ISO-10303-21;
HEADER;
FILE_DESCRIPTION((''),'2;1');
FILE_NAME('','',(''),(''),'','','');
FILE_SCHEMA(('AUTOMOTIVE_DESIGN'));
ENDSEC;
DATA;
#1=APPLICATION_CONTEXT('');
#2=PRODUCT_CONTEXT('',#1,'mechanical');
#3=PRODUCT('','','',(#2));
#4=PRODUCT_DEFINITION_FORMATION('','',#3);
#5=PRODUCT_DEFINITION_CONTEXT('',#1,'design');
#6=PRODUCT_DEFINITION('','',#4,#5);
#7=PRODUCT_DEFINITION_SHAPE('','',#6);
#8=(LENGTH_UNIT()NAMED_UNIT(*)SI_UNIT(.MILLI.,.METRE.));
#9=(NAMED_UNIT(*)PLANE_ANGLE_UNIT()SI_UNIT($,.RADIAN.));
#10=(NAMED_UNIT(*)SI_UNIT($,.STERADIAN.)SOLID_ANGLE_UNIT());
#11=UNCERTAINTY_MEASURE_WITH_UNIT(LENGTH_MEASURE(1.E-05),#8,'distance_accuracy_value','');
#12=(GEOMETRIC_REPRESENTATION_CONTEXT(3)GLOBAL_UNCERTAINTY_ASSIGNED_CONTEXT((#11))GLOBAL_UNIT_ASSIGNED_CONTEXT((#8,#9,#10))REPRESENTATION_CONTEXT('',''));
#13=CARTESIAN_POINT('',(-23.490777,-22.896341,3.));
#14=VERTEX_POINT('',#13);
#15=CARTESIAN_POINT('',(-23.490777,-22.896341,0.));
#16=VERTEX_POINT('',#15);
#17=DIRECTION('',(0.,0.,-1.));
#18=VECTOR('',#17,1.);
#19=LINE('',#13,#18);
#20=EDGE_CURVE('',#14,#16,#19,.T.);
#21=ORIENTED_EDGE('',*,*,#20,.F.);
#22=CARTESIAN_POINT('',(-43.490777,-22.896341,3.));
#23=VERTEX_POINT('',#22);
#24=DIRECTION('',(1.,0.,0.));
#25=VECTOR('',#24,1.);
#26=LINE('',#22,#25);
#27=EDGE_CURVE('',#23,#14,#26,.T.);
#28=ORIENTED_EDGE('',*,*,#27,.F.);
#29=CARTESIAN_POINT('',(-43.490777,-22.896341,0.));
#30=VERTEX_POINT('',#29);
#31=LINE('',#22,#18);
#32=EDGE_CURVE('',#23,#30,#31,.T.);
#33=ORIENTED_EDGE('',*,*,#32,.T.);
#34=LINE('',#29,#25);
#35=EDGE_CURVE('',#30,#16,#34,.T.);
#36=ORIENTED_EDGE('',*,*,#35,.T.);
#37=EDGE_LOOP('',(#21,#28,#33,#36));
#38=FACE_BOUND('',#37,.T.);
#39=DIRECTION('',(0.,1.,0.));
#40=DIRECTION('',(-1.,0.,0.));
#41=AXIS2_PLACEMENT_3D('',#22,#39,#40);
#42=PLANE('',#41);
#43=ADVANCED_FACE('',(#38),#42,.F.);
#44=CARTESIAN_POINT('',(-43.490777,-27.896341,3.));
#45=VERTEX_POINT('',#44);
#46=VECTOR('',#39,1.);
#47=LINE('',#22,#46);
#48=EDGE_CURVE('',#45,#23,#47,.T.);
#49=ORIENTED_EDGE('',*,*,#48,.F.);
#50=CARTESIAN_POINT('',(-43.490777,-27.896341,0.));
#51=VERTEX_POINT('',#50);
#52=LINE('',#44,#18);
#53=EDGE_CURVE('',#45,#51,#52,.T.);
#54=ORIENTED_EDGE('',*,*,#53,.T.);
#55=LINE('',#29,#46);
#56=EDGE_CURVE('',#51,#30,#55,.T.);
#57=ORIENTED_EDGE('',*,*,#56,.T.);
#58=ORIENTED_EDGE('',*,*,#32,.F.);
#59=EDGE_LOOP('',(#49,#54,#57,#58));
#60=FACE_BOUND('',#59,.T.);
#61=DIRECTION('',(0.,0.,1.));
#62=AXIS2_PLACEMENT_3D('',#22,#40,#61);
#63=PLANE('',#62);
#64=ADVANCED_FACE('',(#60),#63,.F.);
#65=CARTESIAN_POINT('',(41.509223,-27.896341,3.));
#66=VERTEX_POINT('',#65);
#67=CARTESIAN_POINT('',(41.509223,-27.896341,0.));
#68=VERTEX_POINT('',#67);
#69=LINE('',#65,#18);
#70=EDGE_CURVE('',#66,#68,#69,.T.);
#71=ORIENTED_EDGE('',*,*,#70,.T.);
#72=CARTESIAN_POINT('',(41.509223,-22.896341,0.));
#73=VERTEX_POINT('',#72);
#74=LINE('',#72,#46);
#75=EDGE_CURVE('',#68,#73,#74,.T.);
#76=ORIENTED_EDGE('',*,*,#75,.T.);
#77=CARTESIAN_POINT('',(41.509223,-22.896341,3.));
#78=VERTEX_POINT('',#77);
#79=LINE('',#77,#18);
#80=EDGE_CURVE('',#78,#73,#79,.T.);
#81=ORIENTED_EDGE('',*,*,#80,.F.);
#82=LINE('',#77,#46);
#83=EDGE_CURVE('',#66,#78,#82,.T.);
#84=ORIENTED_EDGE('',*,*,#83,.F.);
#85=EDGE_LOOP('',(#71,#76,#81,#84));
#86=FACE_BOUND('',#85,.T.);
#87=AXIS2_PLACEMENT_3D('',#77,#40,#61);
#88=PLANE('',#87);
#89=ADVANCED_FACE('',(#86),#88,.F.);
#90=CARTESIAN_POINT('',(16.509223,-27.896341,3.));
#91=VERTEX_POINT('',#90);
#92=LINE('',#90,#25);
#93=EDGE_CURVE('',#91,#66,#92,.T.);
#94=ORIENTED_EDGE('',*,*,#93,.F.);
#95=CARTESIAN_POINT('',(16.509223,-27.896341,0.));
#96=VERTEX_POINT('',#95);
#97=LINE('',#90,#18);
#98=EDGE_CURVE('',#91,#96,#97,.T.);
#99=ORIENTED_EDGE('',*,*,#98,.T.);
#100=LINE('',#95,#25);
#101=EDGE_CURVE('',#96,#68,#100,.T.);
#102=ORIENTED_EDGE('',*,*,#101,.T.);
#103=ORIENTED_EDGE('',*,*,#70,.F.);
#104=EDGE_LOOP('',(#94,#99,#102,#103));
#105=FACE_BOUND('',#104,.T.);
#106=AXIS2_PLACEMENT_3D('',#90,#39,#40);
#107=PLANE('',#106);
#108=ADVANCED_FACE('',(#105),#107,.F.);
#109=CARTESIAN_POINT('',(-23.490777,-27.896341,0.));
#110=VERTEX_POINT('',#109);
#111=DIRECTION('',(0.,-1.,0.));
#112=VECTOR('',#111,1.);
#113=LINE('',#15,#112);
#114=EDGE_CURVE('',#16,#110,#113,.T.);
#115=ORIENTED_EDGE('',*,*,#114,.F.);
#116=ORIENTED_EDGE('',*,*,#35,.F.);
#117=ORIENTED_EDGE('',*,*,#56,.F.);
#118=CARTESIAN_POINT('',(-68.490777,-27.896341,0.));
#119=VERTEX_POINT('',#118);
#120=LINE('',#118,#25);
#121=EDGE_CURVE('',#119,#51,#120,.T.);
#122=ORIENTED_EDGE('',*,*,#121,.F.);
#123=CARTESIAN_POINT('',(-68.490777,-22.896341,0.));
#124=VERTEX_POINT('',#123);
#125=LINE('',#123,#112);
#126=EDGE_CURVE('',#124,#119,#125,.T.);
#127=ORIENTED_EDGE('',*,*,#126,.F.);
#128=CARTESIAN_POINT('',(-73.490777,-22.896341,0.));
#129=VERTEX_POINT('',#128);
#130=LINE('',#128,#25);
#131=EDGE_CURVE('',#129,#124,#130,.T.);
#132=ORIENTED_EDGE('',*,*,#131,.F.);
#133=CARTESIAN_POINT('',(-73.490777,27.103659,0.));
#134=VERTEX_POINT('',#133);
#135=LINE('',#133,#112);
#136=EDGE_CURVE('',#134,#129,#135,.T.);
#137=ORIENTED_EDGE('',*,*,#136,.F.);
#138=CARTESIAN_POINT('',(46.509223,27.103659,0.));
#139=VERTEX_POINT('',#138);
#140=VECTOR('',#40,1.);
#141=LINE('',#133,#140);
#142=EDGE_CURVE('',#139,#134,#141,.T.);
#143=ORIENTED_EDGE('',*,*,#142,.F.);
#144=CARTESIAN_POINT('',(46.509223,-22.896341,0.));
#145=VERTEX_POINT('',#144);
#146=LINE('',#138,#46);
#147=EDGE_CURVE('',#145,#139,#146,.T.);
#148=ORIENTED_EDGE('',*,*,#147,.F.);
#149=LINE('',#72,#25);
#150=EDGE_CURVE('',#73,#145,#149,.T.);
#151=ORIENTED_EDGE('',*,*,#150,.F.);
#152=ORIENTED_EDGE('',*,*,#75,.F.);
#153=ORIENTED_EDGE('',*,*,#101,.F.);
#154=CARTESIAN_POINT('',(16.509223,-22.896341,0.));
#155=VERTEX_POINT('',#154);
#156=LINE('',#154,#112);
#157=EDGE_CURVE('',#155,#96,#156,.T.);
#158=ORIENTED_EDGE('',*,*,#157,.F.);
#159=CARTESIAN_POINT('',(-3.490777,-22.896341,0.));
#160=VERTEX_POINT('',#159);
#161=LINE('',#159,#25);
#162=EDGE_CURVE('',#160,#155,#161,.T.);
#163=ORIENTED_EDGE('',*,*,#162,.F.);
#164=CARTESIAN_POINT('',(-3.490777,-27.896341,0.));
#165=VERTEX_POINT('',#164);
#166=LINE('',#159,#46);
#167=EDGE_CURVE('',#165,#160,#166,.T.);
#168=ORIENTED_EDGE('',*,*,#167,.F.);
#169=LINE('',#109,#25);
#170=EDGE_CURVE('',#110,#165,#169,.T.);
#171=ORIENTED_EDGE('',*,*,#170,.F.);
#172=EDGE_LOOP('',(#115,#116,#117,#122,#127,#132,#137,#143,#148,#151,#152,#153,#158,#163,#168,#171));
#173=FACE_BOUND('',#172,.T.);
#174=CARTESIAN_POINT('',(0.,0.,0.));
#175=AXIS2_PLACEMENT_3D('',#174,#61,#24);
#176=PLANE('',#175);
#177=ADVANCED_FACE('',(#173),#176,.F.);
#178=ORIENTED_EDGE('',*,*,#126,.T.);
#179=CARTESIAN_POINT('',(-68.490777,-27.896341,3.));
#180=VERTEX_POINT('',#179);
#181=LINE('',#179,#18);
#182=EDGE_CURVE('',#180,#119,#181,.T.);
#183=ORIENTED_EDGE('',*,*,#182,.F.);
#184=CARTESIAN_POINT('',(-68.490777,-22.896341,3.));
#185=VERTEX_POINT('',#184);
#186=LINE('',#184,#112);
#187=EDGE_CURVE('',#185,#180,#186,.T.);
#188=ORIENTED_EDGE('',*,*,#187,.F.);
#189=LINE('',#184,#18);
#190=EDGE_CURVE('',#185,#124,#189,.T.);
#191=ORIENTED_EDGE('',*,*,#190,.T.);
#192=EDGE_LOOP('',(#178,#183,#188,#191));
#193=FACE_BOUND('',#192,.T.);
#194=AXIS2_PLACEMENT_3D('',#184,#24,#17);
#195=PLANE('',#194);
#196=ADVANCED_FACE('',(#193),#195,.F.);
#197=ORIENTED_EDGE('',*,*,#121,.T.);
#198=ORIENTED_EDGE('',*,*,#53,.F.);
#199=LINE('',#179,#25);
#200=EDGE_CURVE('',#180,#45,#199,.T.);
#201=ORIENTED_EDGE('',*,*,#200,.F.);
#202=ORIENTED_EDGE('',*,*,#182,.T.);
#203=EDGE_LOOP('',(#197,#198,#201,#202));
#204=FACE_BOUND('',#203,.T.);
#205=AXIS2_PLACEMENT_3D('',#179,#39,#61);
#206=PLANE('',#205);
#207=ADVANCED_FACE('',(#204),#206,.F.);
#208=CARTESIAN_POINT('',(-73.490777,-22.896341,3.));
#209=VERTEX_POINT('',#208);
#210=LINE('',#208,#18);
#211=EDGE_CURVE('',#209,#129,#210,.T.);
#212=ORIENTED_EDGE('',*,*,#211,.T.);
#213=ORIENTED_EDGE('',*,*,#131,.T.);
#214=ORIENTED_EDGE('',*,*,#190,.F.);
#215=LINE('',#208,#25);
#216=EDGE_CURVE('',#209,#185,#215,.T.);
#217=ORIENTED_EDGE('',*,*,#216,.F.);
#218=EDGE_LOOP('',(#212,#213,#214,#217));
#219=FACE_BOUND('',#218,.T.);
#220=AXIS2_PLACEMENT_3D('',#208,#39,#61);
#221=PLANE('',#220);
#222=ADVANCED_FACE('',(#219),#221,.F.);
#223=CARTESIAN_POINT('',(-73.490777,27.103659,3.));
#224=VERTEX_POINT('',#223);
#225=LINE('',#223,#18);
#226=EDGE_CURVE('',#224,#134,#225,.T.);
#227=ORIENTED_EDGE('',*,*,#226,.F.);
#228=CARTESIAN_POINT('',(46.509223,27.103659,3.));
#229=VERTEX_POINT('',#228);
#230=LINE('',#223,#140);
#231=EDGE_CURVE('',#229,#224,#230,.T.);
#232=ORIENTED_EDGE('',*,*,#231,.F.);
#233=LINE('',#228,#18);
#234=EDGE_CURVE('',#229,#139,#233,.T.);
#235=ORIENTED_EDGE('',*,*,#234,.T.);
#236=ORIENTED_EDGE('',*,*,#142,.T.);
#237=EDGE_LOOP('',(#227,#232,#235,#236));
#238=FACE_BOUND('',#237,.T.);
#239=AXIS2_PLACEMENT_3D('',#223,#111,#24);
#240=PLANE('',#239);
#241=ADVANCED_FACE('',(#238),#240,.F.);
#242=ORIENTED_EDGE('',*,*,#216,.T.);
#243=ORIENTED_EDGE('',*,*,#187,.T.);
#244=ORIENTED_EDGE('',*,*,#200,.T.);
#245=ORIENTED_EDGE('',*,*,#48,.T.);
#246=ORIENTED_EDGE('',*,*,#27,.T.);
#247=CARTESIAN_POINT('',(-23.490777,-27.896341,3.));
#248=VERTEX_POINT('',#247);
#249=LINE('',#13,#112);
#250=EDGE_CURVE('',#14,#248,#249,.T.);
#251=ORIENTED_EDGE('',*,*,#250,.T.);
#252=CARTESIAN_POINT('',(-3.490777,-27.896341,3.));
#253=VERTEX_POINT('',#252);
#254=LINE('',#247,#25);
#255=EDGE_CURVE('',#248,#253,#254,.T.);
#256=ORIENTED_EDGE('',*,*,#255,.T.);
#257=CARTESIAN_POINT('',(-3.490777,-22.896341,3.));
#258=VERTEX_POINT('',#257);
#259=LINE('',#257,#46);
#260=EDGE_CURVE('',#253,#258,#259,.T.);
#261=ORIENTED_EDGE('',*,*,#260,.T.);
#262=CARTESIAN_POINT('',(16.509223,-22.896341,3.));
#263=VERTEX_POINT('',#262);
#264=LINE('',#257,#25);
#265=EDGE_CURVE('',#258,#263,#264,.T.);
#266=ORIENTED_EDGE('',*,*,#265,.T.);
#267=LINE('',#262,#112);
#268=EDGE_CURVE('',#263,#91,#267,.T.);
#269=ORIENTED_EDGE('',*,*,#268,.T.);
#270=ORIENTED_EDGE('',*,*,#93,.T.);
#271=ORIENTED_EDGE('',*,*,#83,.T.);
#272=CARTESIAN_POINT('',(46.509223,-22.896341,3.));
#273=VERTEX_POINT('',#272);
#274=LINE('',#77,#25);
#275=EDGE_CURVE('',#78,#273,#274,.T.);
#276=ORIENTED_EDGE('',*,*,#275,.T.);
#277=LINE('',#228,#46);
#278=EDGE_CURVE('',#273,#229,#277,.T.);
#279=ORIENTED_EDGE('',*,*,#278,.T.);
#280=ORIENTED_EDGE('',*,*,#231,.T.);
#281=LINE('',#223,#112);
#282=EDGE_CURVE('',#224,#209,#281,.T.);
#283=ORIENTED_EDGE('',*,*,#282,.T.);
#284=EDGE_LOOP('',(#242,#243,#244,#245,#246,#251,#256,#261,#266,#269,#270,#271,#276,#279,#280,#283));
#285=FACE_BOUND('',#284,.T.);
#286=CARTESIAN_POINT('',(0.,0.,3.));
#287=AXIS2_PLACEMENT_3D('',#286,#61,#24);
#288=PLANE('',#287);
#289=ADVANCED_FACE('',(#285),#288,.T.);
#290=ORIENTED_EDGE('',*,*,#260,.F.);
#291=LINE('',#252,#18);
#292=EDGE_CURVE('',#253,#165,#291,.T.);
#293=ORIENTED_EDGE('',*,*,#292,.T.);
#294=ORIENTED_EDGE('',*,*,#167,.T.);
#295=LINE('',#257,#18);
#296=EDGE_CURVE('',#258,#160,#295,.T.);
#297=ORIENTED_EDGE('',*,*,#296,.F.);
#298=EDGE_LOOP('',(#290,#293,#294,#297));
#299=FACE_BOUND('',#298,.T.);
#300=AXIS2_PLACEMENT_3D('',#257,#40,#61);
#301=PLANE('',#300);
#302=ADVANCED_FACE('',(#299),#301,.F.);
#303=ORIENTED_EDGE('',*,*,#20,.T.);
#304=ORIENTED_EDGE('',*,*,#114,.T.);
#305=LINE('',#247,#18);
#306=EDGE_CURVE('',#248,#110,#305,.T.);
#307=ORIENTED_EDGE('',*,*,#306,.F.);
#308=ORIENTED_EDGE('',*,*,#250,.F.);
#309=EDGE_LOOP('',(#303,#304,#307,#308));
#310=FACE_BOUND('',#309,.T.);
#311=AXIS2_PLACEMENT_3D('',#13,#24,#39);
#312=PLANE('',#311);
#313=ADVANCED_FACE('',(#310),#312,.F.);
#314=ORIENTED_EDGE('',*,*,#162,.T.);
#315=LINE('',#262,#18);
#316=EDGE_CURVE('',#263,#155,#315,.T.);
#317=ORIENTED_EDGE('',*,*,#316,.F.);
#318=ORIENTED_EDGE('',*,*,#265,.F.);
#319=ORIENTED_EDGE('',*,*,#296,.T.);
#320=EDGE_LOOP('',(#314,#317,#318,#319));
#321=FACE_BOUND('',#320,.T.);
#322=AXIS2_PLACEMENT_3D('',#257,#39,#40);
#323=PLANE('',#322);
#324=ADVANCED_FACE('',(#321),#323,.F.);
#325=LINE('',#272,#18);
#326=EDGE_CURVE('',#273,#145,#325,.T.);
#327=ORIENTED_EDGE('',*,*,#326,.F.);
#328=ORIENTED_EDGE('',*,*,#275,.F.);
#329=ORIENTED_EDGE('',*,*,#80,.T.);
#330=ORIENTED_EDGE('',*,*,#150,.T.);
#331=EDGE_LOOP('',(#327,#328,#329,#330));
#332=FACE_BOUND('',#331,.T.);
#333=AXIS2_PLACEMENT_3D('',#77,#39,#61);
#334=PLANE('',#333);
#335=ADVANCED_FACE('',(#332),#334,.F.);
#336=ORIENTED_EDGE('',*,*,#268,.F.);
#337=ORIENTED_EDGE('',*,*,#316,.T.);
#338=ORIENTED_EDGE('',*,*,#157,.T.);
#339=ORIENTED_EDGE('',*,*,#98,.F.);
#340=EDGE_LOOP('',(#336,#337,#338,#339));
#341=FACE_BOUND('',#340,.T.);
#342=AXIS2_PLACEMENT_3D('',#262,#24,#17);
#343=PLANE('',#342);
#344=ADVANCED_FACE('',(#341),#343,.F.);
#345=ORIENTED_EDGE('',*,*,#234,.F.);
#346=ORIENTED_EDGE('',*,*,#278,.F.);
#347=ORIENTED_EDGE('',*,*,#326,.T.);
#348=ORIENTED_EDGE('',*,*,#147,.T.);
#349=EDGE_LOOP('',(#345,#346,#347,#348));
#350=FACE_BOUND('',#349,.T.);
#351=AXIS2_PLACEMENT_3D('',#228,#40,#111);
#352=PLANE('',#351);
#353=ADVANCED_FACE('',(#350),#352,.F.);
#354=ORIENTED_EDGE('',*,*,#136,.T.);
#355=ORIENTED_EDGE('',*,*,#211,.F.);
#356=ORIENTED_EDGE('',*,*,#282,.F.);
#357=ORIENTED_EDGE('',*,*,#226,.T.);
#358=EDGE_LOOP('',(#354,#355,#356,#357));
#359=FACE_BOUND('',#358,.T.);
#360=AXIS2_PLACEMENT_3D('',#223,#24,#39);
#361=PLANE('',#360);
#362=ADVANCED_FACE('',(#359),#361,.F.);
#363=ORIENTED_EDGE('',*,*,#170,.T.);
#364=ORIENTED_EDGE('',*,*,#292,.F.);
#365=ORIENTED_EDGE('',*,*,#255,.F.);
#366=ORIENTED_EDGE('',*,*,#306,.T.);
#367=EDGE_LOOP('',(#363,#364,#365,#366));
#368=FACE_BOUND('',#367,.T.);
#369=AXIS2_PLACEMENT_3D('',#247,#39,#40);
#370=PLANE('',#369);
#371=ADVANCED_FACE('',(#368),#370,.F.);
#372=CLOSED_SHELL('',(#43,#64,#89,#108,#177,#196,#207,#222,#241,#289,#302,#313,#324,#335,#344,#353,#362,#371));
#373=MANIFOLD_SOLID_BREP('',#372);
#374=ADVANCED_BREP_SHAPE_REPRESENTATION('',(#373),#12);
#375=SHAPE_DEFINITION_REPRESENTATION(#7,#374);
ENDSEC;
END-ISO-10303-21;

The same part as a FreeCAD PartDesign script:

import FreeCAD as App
import Part
import Sketcher
Q = App.Units.Quantity


def add_polygon(sketch, points):
    """Adds a closed chain of lines whose ends are joined by coincident constraints."""
    first, n = sketch.GeometryCount, len(points)
    for a, b in zip(points, points[1:] + points[:1]):
        sketch.addGeometry(Part.LineSegment(App.Vector(*a, 0), App.Vector(*b, 0)), False)
    for i in range(n):
        sketch.addConstraint(Sketcher.Constraint("Coincident", first + i, 2, first + (i + 1) % n, 1))

doc = App.newDocument("Part")
body = doc.addObject("PartDesign::Body", "Body")

sketch1 = doc.addObject("Sketcher::SketchObject", "Sketch")
body.addObject(sketch1)
sketch1.AttachmentSupport = (doc.XY_Plane, [""])
sketch1.MapMode = "FlatFace"
add_polygon(sketch1, [(-43, -23), (-23, -23), (-23, -28), (-3, -28), (-3, -23), (17, -23), (17, -28), (42, -28), (42, -23), (47, -23), (47, 27), (-73, 27), (-73, -23), (-68, -23), (-68, -28), (-43, -28)])
sketch1.addConstraint(Sketcher.Constraint("Horizontal", 0))
sketch1.addConstraint(Sketcher.Constraint("Vertical", 1))
sketch1.addConstraint(Sketcher.Constraint("Horizontal", 2))
sketch1.addConstraint(Sketcher.Constraint("Vertical", 3))
sketch1.addConstraint(Sketcher.Constraint("Horizontal", 4))
sketch1.addConstraint(Sketcher.Constraint("Vertical", 5))
sketch1.addConstraint(Sketcher.Constraint("Horizontal", 6))
sketch1.addConstraint(Sketcher.Constraint("Vertical", 7))
sketch1.addConstraint(Sketcher.Constraint("Horizontal", 8))
sketch1.addConstraint(Sketcher.Constraint("Vertical", 9))
sketch1.addConstraint(Sketcher.Constraint("Horizontal", 10))
sketch1.addConstraint(Sketcher.Constraint("Vertical", 11))
sketch1.addConstraint(Sketcher.Constraint("Horizontal", 12))
sketch1.addConstraint(Sketcher.Constraint("Vertical", 13))
sketch1.addConstraint(Sketcher.Constraint("Horizontal", 14))
sketch1.addConstraint(Sketcher.Constraint("Vertical", 15))
sketch1.addConstraint(Sketcher.Constraint("Horizontal", 0, 2, 3, 2))
sketch1.addConstraint(Sketcher.Constraint("Horizontal", 2, 2, 5, 2))
sketch1.addConstraint(Sketcher.Constraint("Horizontal", 4, 2, 7, 2))
sketch1.addConstraint(Sketcher.Constraint("Horizontal", 8, 2, 11, 2))
sketch1.addConstraint(Sketcher.Constraint("Horizontal", 6, 2, 13, 2))
sketch1.addConstraint(Sketcher.Constraint("Equal", 0, 2))
sketch1.addConstraint(Sketcher.Constraint("Equal", 2, 4))
sketch1.addConstraint(Sketcher.Constraint("Equal", 8, 12))
sketch1.addConstraint(Sketcher.Constraint("Equal", 6, 14))
sketch1.addConstraint(Sketcher.Constraint("Equal", 12, 1))
sketch1.addConstraint(Sketcher.Constraint("DistanceX", 0, 1, 0, 2, Q("20 mm")))
sketch1.addConstraint(Sketcher.Constraint("DistanceX", 6, 1, 6, 2, Q("25 mm")))
sketch1.addConstraint(Sketcher.Constraint("DistanceX", 8, 1, 8, 2, Q("5 mm")))
sketch1.addConstraint(Sketcher.Constraint("DistanceY", 9, 1, 9, 2, Q("50 mm")))
sketch1.addConstraint(Sketcher.Constraint("DistanceY", 0, 2, -1, 1, Q("22.896341 mm")))
sketch1.addConstraint(Sketcher.Constraint("DistanceX", 0, 2, -1, 1, Q("23.490777 mm")))
pad1 = doc.addObject("PartDesign::Pad", "Pad")
body.addObject(pad1)
pad1.Profile = sketch1
pad1.Length = 3

doc.recompute()
